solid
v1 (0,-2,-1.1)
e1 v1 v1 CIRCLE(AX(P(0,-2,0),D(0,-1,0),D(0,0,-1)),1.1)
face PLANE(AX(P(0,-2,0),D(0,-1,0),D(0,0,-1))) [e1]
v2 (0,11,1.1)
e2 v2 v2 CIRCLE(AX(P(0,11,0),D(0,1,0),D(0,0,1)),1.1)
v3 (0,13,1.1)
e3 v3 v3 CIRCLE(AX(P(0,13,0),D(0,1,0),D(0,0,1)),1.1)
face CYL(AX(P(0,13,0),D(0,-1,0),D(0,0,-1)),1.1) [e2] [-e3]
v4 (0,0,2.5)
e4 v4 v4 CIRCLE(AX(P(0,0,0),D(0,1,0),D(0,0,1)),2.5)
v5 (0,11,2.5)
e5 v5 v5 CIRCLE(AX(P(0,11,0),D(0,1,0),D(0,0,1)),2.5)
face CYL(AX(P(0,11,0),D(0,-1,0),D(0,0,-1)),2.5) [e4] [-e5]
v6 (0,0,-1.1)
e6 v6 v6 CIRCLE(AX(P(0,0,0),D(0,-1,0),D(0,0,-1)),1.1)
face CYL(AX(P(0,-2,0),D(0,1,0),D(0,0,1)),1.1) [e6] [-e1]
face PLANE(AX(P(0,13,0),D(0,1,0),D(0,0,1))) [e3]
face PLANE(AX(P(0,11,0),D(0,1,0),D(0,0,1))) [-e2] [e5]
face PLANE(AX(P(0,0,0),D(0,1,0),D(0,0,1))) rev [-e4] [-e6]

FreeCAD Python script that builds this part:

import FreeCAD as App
import Part
import Sketcher

doc = App.newDocument("Part")
body = doc.addObject("PartDesign::Body", "Body")

sketch1 = body.newObject("Sketcher::SketchObject", "Sketch")
sketch1.AttachmentSupport = (doc.getObject("XZ_Plane"), [""])
sketch1.MapMode = "FlatFace"
sketch1.addGeometry(Part.Circle(App.Vector(0, 0, 0), App.Vector(0, 0, 1), 2.5), False)
sketch1.addConstraint(Sketcher.Constraint("Coincident", 0, 3, -1, 1))
sketch1.addConstraint(Sketcher.Constraint("Diameter", 0, 5.0))
pad1 = body.newObject("PartDesign::Pad", "Pad")
pad1.Profile = sketch1
pad1.Length = 11
pad1.Reversed = True

sketch2 = body.newObject("Sketcher::SketchObject", "Sketch001")
sketch2.AttachmentSupport = (doc.getObject("XZ_Plane"), [""])
sketch2.MapMode = "FlatFace"
sketch2.AttachmentOffset = App.Placement(App.Vector(0, 0, -11), App.Rotation())
sketch2.addGeometry(Part.Circle(App.Vector(0, 0, 0), App.Vector(0, 0, 1), 1.1), False)
sketch2.addConstraint(Sketcher.Constraint("Coincident", 0, 3, -1, 1))
sketch2.addConstraint(Sketcher.Constraint("Diameter", 0, 2.2))
pad2 = body.newObject("PartDesign::Pad", "Pad001")
pad2.Profile = sketch2
pad2.Length = 2
pad2.Reversed = True

sketch3 = body.newObject("Sketcher::SketchObject", "Sketch002")
sketch3.AttachmentSupport = (doc.getObject("XZ_Plane"), [""])
sketch3.MapMode = "FlatFace"
sketch3.AttachmentOffset = App.Placement(App.Vector(0, 0, 2), App.Rotation())
sketch3.addGeometry(Part.Circle(App.Vector(0, 0, 0), App.Vector(0, 0, 1), 1.1), False)
sketch3.addConstraint(Sketcher.Constraint("Coincident", 0, 3, -1, 1))
sketch3.addConstraint(Sketcher.Constraint("Diameter", 0, 2.2))
pad3 = body.newObject("PartDesign::Pad", "Pad002")
pad3.Profile = sketch3
pad3.Length = 2
pad3.Reversed = True

doc.recompute()
